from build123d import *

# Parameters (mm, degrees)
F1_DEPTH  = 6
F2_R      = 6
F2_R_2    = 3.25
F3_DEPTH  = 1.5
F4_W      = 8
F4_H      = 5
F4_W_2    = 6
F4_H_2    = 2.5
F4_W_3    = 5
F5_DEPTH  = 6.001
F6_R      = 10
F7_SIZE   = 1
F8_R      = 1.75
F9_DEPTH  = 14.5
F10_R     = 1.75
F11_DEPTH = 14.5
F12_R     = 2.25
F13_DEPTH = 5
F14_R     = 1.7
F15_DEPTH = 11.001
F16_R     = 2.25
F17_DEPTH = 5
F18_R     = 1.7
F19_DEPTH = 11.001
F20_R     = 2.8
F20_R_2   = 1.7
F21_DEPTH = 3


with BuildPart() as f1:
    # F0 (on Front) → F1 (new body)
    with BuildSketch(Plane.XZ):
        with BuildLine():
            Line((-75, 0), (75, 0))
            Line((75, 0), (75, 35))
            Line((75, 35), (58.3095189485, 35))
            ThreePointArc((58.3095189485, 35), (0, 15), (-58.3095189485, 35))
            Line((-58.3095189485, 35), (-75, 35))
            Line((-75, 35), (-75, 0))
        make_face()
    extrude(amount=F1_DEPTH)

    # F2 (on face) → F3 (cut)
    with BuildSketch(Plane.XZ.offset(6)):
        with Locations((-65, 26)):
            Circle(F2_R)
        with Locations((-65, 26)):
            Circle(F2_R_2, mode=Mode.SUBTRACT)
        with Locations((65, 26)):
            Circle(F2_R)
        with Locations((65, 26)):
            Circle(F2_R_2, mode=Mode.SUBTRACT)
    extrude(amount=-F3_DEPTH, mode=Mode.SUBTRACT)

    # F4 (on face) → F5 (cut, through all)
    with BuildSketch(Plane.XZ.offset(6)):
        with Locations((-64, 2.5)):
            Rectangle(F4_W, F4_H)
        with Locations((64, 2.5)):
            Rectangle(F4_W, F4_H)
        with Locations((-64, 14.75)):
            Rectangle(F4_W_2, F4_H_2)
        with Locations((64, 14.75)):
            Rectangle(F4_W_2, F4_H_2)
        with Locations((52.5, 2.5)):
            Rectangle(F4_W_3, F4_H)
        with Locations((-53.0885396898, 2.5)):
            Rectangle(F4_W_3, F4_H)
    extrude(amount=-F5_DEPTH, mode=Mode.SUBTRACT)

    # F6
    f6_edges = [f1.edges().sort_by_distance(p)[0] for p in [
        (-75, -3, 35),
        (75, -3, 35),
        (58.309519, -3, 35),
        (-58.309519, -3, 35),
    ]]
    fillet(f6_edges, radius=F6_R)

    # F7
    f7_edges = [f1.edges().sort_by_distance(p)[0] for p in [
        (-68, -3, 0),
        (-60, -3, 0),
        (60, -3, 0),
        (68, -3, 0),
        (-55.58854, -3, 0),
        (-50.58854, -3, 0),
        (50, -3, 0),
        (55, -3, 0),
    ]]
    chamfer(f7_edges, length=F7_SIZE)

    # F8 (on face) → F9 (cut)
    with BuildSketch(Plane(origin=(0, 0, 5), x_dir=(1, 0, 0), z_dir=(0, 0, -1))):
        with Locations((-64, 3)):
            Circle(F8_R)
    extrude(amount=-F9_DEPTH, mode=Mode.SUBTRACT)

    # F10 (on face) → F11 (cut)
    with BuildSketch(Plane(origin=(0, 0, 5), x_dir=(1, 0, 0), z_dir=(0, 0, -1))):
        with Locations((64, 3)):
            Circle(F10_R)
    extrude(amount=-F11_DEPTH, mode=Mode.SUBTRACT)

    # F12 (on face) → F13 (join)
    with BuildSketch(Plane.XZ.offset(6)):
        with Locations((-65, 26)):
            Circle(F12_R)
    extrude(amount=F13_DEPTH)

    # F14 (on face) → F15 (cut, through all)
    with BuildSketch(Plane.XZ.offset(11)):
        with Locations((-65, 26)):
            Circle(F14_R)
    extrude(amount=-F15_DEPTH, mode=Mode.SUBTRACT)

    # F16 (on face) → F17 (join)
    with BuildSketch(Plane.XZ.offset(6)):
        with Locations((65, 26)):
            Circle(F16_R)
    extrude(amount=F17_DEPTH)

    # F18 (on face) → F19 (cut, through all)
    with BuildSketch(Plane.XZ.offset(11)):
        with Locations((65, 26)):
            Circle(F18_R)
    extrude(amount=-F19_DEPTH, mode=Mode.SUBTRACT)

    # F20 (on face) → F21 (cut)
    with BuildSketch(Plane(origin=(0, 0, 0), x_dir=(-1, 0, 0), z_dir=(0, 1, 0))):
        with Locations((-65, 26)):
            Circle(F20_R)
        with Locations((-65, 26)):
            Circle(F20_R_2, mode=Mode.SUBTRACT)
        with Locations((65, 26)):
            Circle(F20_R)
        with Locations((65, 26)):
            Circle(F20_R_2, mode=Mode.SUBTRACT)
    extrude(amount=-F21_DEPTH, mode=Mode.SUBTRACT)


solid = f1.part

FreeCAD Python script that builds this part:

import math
import FreeCAD as App
import Part
import Sketcher

V = App.Vector


def edges_at(feature, points):
    """Names of the edges that pass closest to the given points."""
    edges = feature.Shape.Edges
    near = lambda p: min(range(len(edges)), key=lambda i: edges[i].distToShape(Part.Vertex(*p))[0])
    return sorted({f"Edge{near(p) + 1}" for p in points})


def add_polygon(sketch, points):
    """Adds a closed chain of lines whose ends are joined by coincident constraints."""
    first, n = sketch.GeometryCount, len(points)
    for a, b in zip(points, points[1:] + points[:1]):
        sketch.addGeometry(Part.LineSegment(App.Vector(*a, 0), App.Vector(*b, 0)), False)
    for i in range(n):
        sketch.addConstraint(Sketcher.Constraint("Coincident", first + i, 2, first + (i + 1) % n, 1))

doc = App.newDocument("Part")
body = doc.addObject("PartDesign::Body", "Body")

sketch1 = body.newObject("Sketcher::SketchObject", "Sketch")
sketch1.AttachmentSupport = (doc.getObject("XZ_Plane"), [""])
sketch1.MapMode = "FlatFace"
sketch1.addGeometry([
    Part.LineSegment(V(-75, 0, 0), V(75, 0, 0)),
    Part.LineSegment(V(75, 0, 0), V(75, 35, 0)),
    Part.LineSegment(V(75, 35, 0), V(58.309519, 35, 0)),
    Part.ArcOfCircle(Part.Circle(V(0, 110, 0), V(0, 0, 1), 95), math.radians(-127.863646), math.radians(-52.136354)),
    Part.LineSegment(V(-58.309519, 35, 0), V(-75, 35, 0)),
    Part.LineSegment(V(-75, 35, 0), V(-75, 0, 0)),
], False)
sketch1.addConstraint([
    Sketcher.Constraint("Coincident", 0, 2, 1, 1),
    Sketcher.Constraint("Coincident", 1, 2, 2, 1),
    Sketcher.Constraint("Coincident", 2, 2, 3, 2),
    Sketcher.Constraint("Coincident", 3, 1, 4, 1),
    Sketcher.Constraint("Coincident", 4, 2, 5, 1),
    Sketcher.Constraint("Coincident", 5, 2, 0, 1),
    Sketcher.Constraint("Horizontal", 0),
    Sketcher.Constraint("Vertical", 1),
    Sketcher.Constraint("Horizontal", 2),
    Sketcher.Constraint("Horizontal", 4),
    Sketcher.Constraint("Vertical", 5),
    Sketcher.Constraint("Symmetric", 0, 2, 5, 2, -1, 1),
    Sketcher.Constraint("Symmetric", 2, 2, 3, 1, -2),
    Sketcher.Constraint("Radius", 3, 95.0),
    Sketcher.Constraint("DistanceX", 0, 1, 0, 2, 150.0),
    Sketcher.Constraint("DistanceY", 1, 1, 1, 2, 35.0),
    Sketcher.Constraint("DistanceY", -1, 1, 3, 3, 110.0),
])
pad1 = body.newObject("PartDesign::Pad", "Pad")
pad1.Profile = sketch1
pad1.Length = 6

sketch2 = body.newObject("Sketcher::SketchObject", "Sketch001")
sketch2.AttachmentSupport = (doc.getObject("XZ_Plane"), [""])
sketch2.MapMode = "FlatFace"
sketch2.AttachmentOffset = App.Placement(V(0, 0, 6), App.Rotation())
sketch2.addGeometry([
    Part.Circle(V(-65, 26, 0), V(0, 0, 1), 6),
    Part.Circle(V(-65, 26, 0), V(0, 0, 1), 3.25),
    Part.Circle(V(65, 26, 0), V(0, 0, 1), 6),
    Part.Circle(V(65, 26, 0), V(0, 0, 1), 3.25),
], False)
sketch2.addConstraint([
    Sketcher.Constraint("Coincident", 1, 3, 0, 3),
    Sketcher.Constraint("Coincident", 3, 3, 2, 3),
    Sketcher.Constraint("Equal", 0, 2),
    Sketcher.Constraint("Equal", 1, 3),
    Sketcher.Constraint("Symmetric", 0, 3, 2, 3, -2),
    Sketcher.Constraint("Diameter", 0, 12.0),
    Sketcher.Constraint("Diameter", 1, 6.5),
    Sketcher.Constraint("DistanceX", 0, 3, -1, 1, 65.0),
    Sketcher.Constraint("DistanceY", -1, 1, 0, 3, 26.0),
])
pocket1 = body.newObject("PartDesign::Pocket", "Pocket")
pocket1.Profile = sketch2
pocket1.Length = 1.5

sketch3 = body.newObject("Sketcher::SketchObject", "Sketch002")
sketch3.AttachmentSupport = (doc.getObject("XZ_Plane"), [""])
sketch3.MapMode = "FlatFace"
sketch3.AttachmentOffset = App.Placement(V(0, 0, 6), App.Rotation())
add_polygon(sketch3, [(-68, 5), (-68, 0), (-60, 0), (-60, 5)])
add_polygon(sketch3, [(60, 5), (60, 0), (68, 0), (68, 5)])
add_polygon(sketch3, [(-67, 16), (-67, 13.5), (-61, 13.5), (-61, 16)])
add_polygon(sketch3, [(61, 16), (61, 13.5), (67, 13.5), (67, 16)])
add_polygon(sketch3, [(50, 5), (50, 0), (55, 0), (55, 5)])
add_polygon(sketch3, [(-55.58854, 5), (-55.58854, 0), (-50.58854, 0), (-50.58854, 5)])
sketch3.addConstraint([
    Sketcher.Constraint("Vertical", 0),
    Sketcher.Constraint("Horizontal", 1),
    Sketcher.Constraint("Vertical", 2),
    Sketcher.Constraint("Horizontal", 3),
    Sketcher.Constraint("Vertical", 4),
    Sketcher.Constraint("Horizontal", 5),
    Sketcher.Constraint("Vertical", 6),
    Sketcher.Constraint("Horizontal", 7),
    Sketcher.Constraint("Vertical", 8),
    Sketcher.Constraint("Horizontal", 9),
    Sketcher.Constraint("Vertical", 10),
    Sketcher.Constraint("Horizontal", 11),
    Sketcher.Constraint("Vertical", 12),
    Sketcher.Constraint("Horizontal", 13),
    Sketcher.Constraint("Vertical", 14),
    Sketcher.Constraint("Horizontal", 15),
    Sketcher.Constraint("Vertical", 16),
    Sketcher.Constraint("Horizontal", 17),
    Sketcher.Constraint("Vertical", 18),
    Sketcher.Constraint("Horizontal", 19),
    Sketcher.Constraint("Vertical", 20),
    Sketcher.Constraint("Horizontal", 21),
    Sketcher.Constraint("Vertical", 22),
    Sketcher.Constraint("Horizontal", 23),
    Sketcher.Constraint("Symmetric", 1, 2, 4, 2, -1, 1),
    Sketcher.Constraint("Symmetric", 0, 2, 5, 2, -2),
    Sketcher.Constraint("Symmetric", 9, 2, 12, 2, -2),
    Sketcher.Constraint("Symmetric", 11, 2, 14, 2, -2),
    Sketcher.Constraint("PointOnObject", 16, 2, -1),
    Sketcher.Constraint("PointOnObject", 20, 2, -1),
    Sketcher.Constraint("Horizontal", 3, 2, 6, 2),
    Sketcher.Constraint("Horizontal", 7, 2, 18, 2),
    Sketcher.Constraint("Horizontal", 19, 2, 22, 2),
    Sketcher.Constraint("Equal", 19, 21),
    Sketcher.Constraint("Equal", 23, 0),
    Sketcher.Constraint("DistanceX", 1, 1, 1, 2, 8.0),
    Sketcher.Constraint("DistanceX", 9, 1, 9, 2, 6.0),
    Sketcher.Constraint("DistanceX", 17, 1, 17, 2, 5.0),
    Sketcher.Constraint("DistanceY", 8, 2, 8, 1, 2.5),
    Sketcher.Constraint("DistanceX", 0, 2, -1, 1, 68.0),
    Sketcher.Constraint("DistanceX", 8, 2, -1, 1, 67.0),
    Sketcher.Constraint("DistanceY", -1, 1, 10, 2, 16.0),
    Sketcher.Constraint("DistanceX", -1, 1, 16, 2, 50.0),
    Sketcher.Constraint("DistanceX", 20, 2, -1, 1, 55.58854),
])
pocket2 = body.newObject("PartDesign::Pocket", "Pocket001")
pocket2.Profile = sketch3
pocket2.Type = "ThroughAll"
doc.recompute()

fillet = body.newObject("PartDesign::Fillet", "Fillet")
fillet.Base = (pocket2, edges_at(pocket2, [
    (-75, -3, 35),
    (75, -3, 35),
    (58.31, -3, 35),
    (-58.31, -3, 35),
]))
fillet.Radius = 10
doc.recompute()

chamfer = body.newObject("PartDesign::Chamfer", "Chamfer")
chamfer.Base = (fillet, edges_at(fillet, [
    (-68, -3, 0),
    (-60, -3, 0),
    (60, -3, 0),
    (68, -3, 0),
    (-55.589, -3, 0),
    (-50.589, -3, 0),
    (50, -3, 0),
    (55, -3, 0),
]))
chamfer.Size = 1

sketch4 = body.newObject("Sketcher::SketchObject", "Sketch003")
sketch4.AttachmentSupport = (doc.getObject("XY_Plane"), [""])
sketch4.MapMode = "FlatFace"
sketch4.AttachmentOffset = App.Placement(V(0, 0, 5), App.Rotation())
sketch4.addGeometry(Part.Circle(V(-64, -3, 0), V(0, 0, 1), 1.75), False)
sketch4.addConstraint([
    Sketcher.Constraint("Diameter", 0, 3.5),
    Sketcher.Constraint("DistanceX", 0, 3, -1, 1, 64.0),
    Sketcher.Constraint("DistanceY", 0, 3, -1, 1, 3.0),
])
pocket3 = body.newObject("PartDesign::Pocket", "Pocket002")
pocket3.Profile = sketch4
pocket3.Length = 14.5
pocket3.Reversed = True

sketch5 = body.newObject("Sketcher::SketchObject", "Sketch004")
sketch5.AttachmentSupport = (doc.getObject("XY_Plane"), [""])
sketch5.MapMode = "FlatFace"
sketch5.AttachmentOffset = App.Placement(V(0, 0, 5), App.Rotation())
sketch5.addGeometry(Part.Circle(V(64, -3, 0), V(0, 0, 1), 1.75), False)
sketch5.addConstraint([
    Sketcher.Constraint("Diameter", 0, 3.5),
    Sketcher.Constraint("DistanceX", -1, 1, 0, 3, 64.0),
    Sketcher.Constraint("DistanceY", 0, 3, -1, 1, 3.0),
])
pocket4 = body.newObject("PartDesign::Pocket", "Pocket003")
pocket4.Profile = sketch5
pocket4.Length = 14.5
pocket4.Reversed = True

sketch6 = body.newObject("Sketcher::SketchObject", "Sketch005")
sketch6.AttachmentSupport = (doc.getObject("XZ_Plane"), [""])
sketch6.MapMode = "FlatFace"
sketch6.AttachmentOffset = App.Placement(V(0, 0, 6), App.Rotation())
sketch6.addGeometry(Part.Circle(V(-65, 26, 0), V(0, 0, 1), 2.25), False)
sketch6.addConstraint([
    Sketcher.Constraint("Diameter", 0, 4.5),
    Sketcher.Constraint("DistanceX", 0, 3, -1, 1, 65.0),
    Sketcher.Constraint("DistanceY", -1, 1, 0, 3, 26.0),
])
pad2 = body.newObject("PartDesign::Pad", "Pad001")
pad2.Profile = sketch6
pad2.Length = 5

sketch7 = body.newObject("Sketcher::SketchObject", "Sketch006")
sketch7.AttachmentSupport = (doc.getObject("XZ_Plane"), [""])
sketch7.MapMode = "FlatFace"
sketch7.AttachmentOffset = App.Placement(V(0, 0, 11), App.Rotation())
sketch7.addGeometry(Part.Circle(V(-65, 26, 0), V(0, 0, 1), 1.7), False)
sketch7.addConstraint([
    Sketcher.Constraint("Diameter", 0, 3.4),
    Sketcher.Constraint("DistanceX", 0, 3, -1, 1, 65.0),
    Sketcher.Constraint("DistanceY", -1, 1, 0, 3, 26.0),
])
pocket5 = body.newObject("PartDesign::Pocket", "Pocket004")
pocket5.Profile = sketch7
pocket5.Type = "ThroughAll"

sketch8 = body.newObject("Sketcher::SketchObject", "Sketch007")
sketch8.AttachmentSupport = (doc.getObject("XZ_Plane"), [""])
sketch8.MapMode = "FlatFace"
sketch8.AttachmentOffset = App.Placement(V(0, 0, 6), App.Rotation())
sketch8.addGeometry(Part.Circle(V(65, 26, 0), V(0, 0, 1), 2.25), False)
sketch8.addConstraint([
    Sketcher.Constraint("Diameter", 0, 4.5),
    Sketcher.Constraint("DistanceX", -1, 1, 0, 3, 65.0),
    Sketcher.Constraint("DistanceY", -1, 1, 0, 3, 26.0),
])
pad3 = body.newObject("PartDesign::Pad", "Pad002")
pad3.Profile = sketch8
pad3.Length = 5

sketch9 = body.newObject("Sketcher::SketchObject", "Sketch008")
sketch9.AttachmentSupport = (doc.getObject("XZ_Plane"), [""])
sketch9.MapMode = "FlatFace"
sketch9.AttachmentOffset = App.Placement(V(0, 0, 11), App.Rotation())
sketch9.addGeometry(Part.Circle(V(65, 26, 0), V(0, 0, 1), 1.7), False)
sketch9.addConstraint([
    Sketcher.Constraint("Diameter", 0, 3.4),
    Sketcher.Constraint("DistanceX", -1, 1, 0, 3, 65.0),
    Sketcher.Constraint("DistanceY", -1, 1, 0, 3, 26.0),
])
pocket6 = body.newObject("PartDesign::Pocket", "Pocket005")
pocket6.Profile = sketch9
pocket6.Type = "ThroughAll"

sketch10 = body.newObject("Sketcher::SketchObject", "Sketch009")
sketch10.AttachmentSupport = (doc.getObject("XZ_Plane"), [""])
sketch10.MapMode = "FlatFace"
sketch10.addGeometry([
    Part.Circle(V(65, 26, 0), V(0, 0, 1), 2.8),
    Part.Circle(V(65, 26, 0), V(0, 0, 1), 1.7),
    Part.Circle(V(-65, 26, 0), V(0, 0, 1), 2.8),
    Part.Circle(V(-65, 26, 0), V(0, 0, 1), 1.7),
], False)
sketch10.addConstraint([
    Sketcher.Constraint("Coincident", 1, 3, 0, 3),
    Sketcher.Constraint("Coincident", 3, 3, 2, 3),
    Sketcher.Constraint("Equal", 0, 2),
    Sketcher.Constraint("Equal", 1, 3),
    Sketcher.Constraint("Symmetric", 0, 3, 2, 3, -2),
    Sketcher.Constraint("Diameter", 0, 5.6),
    Sketcher.Constraint("Diameter", 1, 3.4),
    Sketcher.Constraint("DistanceX", -1, 1, 0, 3, 65.0),
    Sketcher.Constraint("DistanceY", -1, 1, 0, 3, 26.0),
])
pocket7 = body.newObject("PartDesign::Pocket", "Pocket006")
pocket7.Profile = sketch10
pocket7.Length = 3
pocket7.Reversed = True

doc.recompute()
